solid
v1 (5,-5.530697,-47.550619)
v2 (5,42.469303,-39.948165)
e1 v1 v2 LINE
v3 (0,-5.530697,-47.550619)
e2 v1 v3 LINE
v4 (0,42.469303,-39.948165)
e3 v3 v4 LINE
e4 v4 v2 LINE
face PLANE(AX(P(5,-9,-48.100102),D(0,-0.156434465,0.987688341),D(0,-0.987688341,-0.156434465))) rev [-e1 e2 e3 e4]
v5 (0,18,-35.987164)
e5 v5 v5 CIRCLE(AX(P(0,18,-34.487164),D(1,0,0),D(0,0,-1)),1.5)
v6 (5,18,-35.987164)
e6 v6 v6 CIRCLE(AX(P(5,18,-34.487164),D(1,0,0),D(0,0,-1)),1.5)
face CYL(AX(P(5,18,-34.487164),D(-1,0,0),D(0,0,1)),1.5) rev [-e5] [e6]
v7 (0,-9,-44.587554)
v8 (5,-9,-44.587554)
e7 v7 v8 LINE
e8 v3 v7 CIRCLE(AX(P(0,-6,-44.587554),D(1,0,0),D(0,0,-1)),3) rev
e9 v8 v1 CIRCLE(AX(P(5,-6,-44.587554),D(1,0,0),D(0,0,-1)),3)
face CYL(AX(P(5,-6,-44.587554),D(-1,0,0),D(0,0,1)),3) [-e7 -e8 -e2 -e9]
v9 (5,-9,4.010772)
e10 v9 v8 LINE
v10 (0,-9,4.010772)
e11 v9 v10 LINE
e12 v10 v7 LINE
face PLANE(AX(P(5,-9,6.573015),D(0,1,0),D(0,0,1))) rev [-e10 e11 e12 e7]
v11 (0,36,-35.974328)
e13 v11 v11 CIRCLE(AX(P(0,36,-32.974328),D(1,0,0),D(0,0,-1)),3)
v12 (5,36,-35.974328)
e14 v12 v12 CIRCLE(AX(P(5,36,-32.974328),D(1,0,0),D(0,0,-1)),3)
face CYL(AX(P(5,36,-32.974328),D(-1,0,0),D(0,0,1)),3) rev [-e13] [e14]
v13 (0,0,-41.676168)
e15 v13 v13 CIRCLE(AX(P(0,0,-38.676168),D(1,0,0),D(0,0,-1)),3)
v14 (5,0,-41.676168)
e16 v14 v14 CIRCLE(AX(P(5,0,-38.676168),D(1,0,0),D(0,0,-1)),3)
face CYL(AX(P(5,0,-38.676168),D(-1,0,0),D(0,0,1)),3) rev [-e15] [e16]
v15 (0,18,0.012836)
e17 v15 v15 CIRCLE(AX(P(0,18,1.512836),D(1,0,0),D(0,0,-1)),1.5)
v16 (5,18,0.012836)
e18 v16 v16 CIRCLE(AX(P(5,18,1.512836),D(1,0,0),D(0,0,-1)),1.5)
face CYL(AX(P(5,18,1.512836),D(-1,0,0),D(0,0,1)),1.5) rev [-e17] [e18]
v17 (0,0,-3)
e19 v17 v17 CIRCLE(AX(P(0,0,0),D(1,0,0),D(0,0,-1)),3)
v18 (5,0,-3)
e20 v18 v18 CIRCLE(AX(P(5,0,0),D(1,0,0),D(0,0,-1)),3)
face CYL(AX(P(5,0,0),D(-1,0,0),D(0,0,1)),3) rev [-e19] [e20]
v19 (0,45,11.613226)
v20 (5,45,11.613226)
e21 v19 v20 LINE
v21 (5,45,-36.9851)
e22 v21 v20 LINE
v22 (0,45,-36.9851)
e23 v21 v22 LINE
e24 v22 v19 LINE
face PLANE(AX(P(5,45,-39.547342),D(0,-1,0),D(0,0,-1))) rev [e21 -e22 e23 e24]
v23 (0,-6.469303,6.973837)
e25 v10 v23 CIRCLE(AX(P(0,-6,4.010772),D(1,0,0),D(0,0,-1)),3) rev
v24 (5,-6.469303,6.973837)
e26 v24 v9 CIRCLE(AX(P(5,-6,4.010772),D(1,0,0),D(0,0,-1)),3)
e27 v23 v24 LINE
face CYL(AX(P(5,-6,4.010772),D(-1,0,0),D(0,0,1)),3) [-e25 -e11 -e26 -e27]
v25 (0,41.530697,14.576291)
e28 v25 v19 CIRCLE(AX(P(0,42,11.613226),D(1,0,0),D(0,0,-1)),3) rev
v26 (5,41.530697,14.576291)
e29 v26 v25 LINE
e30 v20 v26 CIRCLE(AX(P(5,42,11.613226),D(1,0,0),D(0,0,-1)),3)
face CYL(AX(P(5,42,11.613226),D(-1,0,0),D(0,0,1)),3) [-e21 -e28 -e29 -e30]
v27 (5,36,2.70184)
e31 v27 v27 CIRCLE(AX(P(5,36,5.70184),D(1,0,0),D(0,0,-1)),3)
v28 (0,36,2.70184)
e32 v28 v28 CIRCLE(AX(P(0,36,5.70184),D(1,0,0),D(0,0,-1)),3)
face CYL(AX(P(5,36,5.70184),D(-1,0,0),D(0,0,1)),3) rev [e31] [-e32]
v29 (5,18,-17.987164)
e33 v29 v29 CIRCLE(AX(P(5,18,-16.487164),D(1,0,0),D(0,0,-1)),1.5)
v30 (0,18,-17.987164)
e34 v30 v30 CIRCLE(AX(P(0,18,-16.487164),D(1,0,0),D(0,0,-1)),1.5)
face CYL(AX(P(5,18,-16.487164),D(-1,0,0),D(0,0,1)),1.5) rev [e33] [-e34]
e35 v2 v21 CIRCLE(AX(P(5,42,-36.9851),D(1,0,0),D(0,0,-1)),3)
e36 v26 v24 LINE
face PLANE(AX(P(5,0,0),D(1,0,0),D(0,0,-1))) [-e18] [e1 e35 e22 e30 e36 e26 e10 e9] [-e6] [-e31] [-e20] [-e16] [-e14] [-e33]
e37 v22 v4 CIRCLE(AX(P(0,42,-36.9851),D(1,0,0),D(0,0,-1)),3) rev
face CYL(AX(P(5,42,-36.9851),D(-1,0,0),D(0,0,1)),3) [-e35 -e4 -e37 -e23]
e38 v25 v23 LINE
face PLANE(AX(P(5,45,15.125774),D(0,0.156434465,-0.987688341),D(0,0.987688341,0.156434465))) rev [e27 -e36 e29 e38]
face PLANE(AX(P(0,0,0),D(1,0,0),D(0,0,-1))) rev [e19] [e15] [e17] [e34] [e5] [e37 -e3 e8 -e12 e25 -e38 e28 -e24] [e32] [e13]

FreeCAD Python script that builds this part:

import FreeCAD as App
import Part
import Sketcher
from FreeCAD import Vector
Q = App.Units.Quantity


def edges_at(feature, points):
    """Names of the edges that pass closest to the given points."""
    edges = feature.Shape.Edges
    near = lambda p: min(range(len(edges)), key=lambda i: edges[i].distToShape(Part.Vertex(*p))[0])
    return sorted({f"Edge{near(p) + 1}" for p in points})

doc = App.newDocument("Part")
params = doc.addObject("Spreadsheet::Sheet", "Params")
for row, (alias, value) in enumerate([
    ("sketch1_diameter", "6 mm"),
    ("sketch1_diameter2", "3 mm"),
    ("pad1_length", "5 mm"),
    ("fillet_radius", "3 mm"),
], start=1):
    params.set(f"A{row}", alias)
    params.set(f"B{row}", "=" + value)
    params.setAlias(f"B{row}", alias)

body = doc.addObject("PartDesign::Body", "Body")

# Sketch on YZ plane
sketch1 = doc.addObject("Sketcher::SketchObject", "Sketch")
body.addObject(sketch1)
sketch1.AttachmentSupport = (doc.YZ_Plane, [""])
sketch1.MapMode = "FlatFace"
sketch1.addGeometry(Part.LineSegment(Vector(-9, 6.573015, 0), Vector(-9, -48.100102, 0)), False)
sketch1.addGeometry(Part.LineSegment(Vector(-9, -48.100102, 0), Vector(45, -39.547342, 0)), False)
sketch1.addGeometry(Part.LineSegment(Vector(45, -39.547342, 0), Vector(45, 15.125774, 0)), False)
sketch1.addGeometry(Part.LineSegment(Vector(45, 15.125774, 0), Vector(-9, 6.573015, 0)), False)
sketch1.addGeometry(Part.Circle(Vector(0, 0, 0), Vector(0, 0, 1), 3), False)
sketch1.addGeometry(Part.Circle(Vector(0, -38.676168, 0), Vector(0, 0, 1), 3), False)
sketch1.addGeometry(Part.Circle(Vector(18, 1.512836, 0), Vector(0, 0, 1), 1.5), False)
sketch1.addGeometry(Part.Circle(Vector(36, 5.70184, 0), Vector(0, 0, 1), 3), False)
sketch1.addGeometry(Part.Circle(Vector(18, -16.487164, 0), Vector(0, 0, 1), 1.5), False)
sketch1.addGeometry(Part.Circle(Vector(18, -34.487164, 0), Vector(0, 0, 1), 1.5), False)
sketch1.addGeometry(Part.Circle(Vector(36, -32.974328, 0), Vector(0, 0, 1), 3), False)
sketch1.addConstraint(Sketcher.Constraint("Coincident", 0, 2, 1, 1))
sketch1.addConstraint(Sketcher.Constraint("Coincident", 1, 2, 2, 1))
sketch1.addConstraint(Sketcher.Constraint("Coincident", 2, 2, 3, 1))
sketch1.addConstraint(Sketcher.Constraint("Coincident", 3, 2, 0, 1))
sketch1.addConstraint(Sketcher.Constraint("Vertical", 0))
sketch1.addConstraint(Sketcher.Constraint("Vertical", 2))
sketch1.addConstraint(Sketcher.Constraint("Coincident", 4, 3, -1, 1))
sketch1.addConstraint(Sketcher.Constraint("Equal", 4, 5))
sketch1.addConstraint(Sketcher.Constraint("Equal", 5, 7))
sketch1.addConstraint(Sketcher.Constraint("Equal", 6, 8))
sketch1.addConstraint(Sketcher.Constraint("Equal", 8, 9))
sketch1.addConstraint(Sketcher.Constraint("Equal", 7, 10))
sketch1.addConstraint(Sketcher.Constraint("PointOnObject", 5, 3, -2))
sketch1.addConstraint(Sketcher.Constraint("Parallel", 1, 3))
sketch1.addConstraint(Sketcher.Constraint("Vertical", 6, 3, 8, 3))
sketch1.addConstraint(Sketcher.Constraint("Vertical", 8, 3, 9, 3))
sketch1.addConstraint(Sketcher.Constraint("Vertical", 7, 3, 10, 3))
sketch1.addConstraint(Sketcher.Constraint("Diameter", 4, 6.0))
sketch1.addConstraint(Sketcher.Constraint("Diameter", 6, 3.0))
sketch1.addConstraint(Sketcher.Constraint("Angle", 1, Q("9 deg")))
sketch1.addConstraint(Sketcher.Constraint("DistanceX", -1, 1, 6, 3, 18.0))
sketch1.addConstraint(Sketcher.Constraint("DistanceX", -1, 1, 7, 3, 36.0))
sketch1.addConstraint(Sketcher.Constraint("DistanceX", 0, 2, -1, 1, 9.0))
sketch1.addConstraint(Sketcher.Constraint("DistanceX", -1, 1, 1, 2, 45.0))
sketch1.addConstraint(Sketcher.Constraint("DistanceY", 8, 3, 6, 3, 18.0))
sketch1.addConstraint(Sketcher.Constraint("DistanceY", 9, 3, 8, 3, 18.0))
sketch1.addConstraint(Sketcher.Constraint("DistanceY", 0, 2, 0, 1, 54.673117))
sketch1.addConstraint(Sketcher.Constraint("DistanceY", -1, 1, 7, 3, 5.70184))
sketch1.addConstraint(Sketcher.Constraint("DistanceY", 5, 3, 10, 3, 5.70184))
sketch1.addConstraint(Sketcher.Constraint("DistanceY", 0, 2, 9, 3, 13.612938))
sketch1.addConstraint(Sketcher.Constraint("DistanceY", 5, 3, -1, 1, 38.676168))
sketch1.addConstraint(Sketcher.Constraint("DistanceY", -1, 1, 6, 3, 1.512836))
sketch1.setExpression("Constraints[17]", "Params.sketch1_diameter")
sketch1.setExpression("Constraints[18]", "Params.sketch1_diameter2")
pad1 = doc.addObject("PartDesign::Pad", "Pad")
body.addObject(pad1)
pad1.Profile = sketch1
pad1.setExpression("Length", "Params.pad1_length")
doc.recompute()

fillet = doc.addObject("PartDesign::Fillet", "Fillet")
body.addObject(fillet)
fillet.Base = (pad1, edges_at(pad1, [
    (2.5, 45, 15.126),
    (2.5, 45, -39.547),
    (2.5, -9, -48.1),
    (2.5, -9, 6.573),
]))
fillet.setExpression("Radius", "Params.fillet_radius")

doc.recompute()
